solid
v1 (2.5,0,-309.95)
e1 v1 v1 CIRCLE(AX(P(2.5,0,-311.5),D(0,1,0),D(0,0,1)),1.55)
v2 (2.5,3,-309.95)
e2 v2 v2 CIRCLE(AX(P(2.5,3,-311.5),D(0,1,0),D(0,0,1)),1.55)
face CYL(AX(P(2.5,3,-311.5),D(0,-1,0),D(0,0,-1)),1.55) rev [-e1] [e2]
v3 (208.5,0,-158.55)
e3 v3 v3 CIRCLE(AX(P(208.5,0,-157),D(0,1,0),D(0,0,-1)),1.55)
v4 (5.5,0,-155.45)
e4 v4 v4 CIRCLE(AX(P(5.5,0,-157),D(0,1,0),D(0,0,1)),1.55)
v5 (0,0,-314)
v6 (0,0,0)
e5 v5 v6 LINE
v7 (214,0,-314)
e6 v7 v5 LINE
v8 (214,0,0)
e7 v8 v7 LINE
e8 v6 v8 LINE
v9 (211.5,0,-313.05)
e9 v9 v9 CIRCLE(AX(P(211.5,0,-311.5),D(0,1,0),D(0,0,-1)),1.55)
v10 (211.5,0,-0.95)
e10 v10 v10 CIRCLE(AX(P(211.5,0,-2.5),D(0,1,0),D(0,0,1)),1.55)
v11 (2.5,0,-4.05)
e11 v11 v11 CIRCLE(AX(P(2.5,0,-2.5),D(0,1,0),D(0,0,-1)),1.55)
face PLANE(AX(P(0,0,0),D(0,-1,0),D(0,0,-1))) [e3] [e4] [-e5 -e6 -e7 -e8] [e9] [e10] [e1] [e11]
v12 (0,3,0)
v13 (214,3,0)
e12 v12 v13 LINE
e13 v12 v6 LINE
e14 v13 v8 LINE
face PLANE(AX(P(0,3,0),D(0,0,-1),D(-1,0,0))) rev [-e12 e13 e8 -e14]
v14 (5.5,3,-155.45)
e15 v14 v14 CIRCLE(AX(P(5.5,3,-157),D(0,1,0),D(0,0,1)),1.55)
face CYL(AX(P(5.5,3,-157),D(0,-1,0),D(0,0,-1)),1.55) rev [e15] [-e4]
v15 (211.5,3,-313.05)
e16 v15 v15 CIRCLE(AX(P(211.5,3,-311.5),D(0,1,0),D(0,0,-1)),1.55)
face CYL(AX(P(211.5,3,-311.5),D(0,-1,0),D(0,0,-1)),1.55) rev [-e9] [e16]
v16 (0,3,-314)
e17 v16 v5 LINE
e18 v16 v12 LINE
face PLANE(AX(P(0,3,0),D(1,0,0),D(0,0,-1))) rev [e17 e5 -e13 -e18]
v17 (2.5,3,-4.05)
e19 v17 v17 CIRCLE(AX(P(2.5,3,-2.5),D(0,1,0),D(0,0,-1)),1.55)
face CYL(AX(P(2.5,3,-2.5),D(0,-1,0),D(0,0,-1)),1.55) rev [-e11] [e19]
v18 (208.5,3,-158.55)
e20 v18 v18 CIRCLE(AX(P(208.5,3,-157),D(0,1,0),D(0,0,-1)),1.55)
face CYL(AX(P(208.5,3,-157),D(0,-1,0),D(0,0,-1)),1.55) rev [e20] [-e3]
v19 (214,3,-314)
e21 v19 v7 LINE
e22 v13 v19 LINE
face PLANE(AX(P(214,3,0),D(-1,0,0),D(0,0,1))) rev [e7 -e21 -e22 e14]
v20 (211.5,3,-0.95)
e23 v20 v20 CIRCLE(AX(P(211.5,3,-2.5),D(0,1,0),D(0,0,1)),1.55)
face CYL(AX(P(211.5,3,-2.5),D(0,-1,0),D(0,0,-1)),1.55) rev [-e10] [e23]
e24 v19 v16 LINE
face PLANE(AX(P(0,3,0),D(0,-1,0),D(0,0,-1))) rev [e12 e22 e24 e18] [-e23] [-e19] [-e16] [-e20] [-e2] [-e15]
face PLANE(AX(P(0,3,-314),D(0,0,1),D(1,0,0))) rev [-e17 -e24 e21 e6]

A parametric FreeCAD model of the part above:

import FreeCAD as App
import Part
import Sketcher
from FreeCAD import Vector
Q = App.Units.Quantity

doc = App.newDocument("Part")
body = doc.addObject("PartDesign::Body", "Body")

sketch1 = body.newObject("Sketcher::SketchObject", "Sketch")
sketch1.AttachmentSupport = (doc.getObject("XZ_Plane"), [""])
sketch1.MapMode = "FlatFace"
sketch1.addGeometry([
    Part.LineSegment(Vector(0, -314, 0), Vector(0, 0, 0)),
    Part.LineSegment(Vector(0, 0, 0), Vector(214, 0, 0)),
    Part.LineSegment(Vector(214, 0, 0), Vector(214, -314, 0)),
    Part.LineSegment(Vector(214, -314, 0), Vector(0, -314, 0)),
    Part.Circle(Vector(2.5, -2.5, 0), Vector(0, 0, 1), 1.6),
    Part.Circle(Vector(5.5, -157, 0), Vector(0, 0, 1), 1.6),
    Part.Circle(Vector(211.5, -2.5, 0), Vector(0, 0, 1), 1.6),
    Part.Circle(Vector(208.5, -157, 0), Vector(0, 0, 1), 1.6),
    Part.Circle(Vector(2.5, -311.5, 0), Vector(0, 0, 1), 1.6),
    Part.Circle(Vector(211.5, -311.5, 0), Vector(0, 0, 1), 1.6),
], False)
sketch1.addConstraint([
    Sketcher.Constraint("Coincident", 0, 2, 1, 1),
    Sketcher.Constraint("Coincident", 1, 2, 2, 1),
    Sketcher.Constraint("Coincident", 2, 2, 3, 1),
    Sketcher.Constraint("Coincident", 3, 2, 0, 1),
    Sketcher.Constraint("Vertical", 0),
    Sketcher.Constraint("Horizontal", 1),
    Sketcher.Constraint("Vertical", 2),
    Sketcher.Constraint("Horizontal", 3),
    Sketcher.Constraint("Coincident", 0, 2, -1, 1),
    Sketcher.Constraint("Equal", 4, 5),
    Sketcher.Constraint("Equal", 5, 6),
    Sketcher.Constraint("Equal", 6, 7),
    Sketcher.Constraint("Equal", 7, 8),
    Sketcher.Constraint("Equal", 8, 9),
    Sketcher.Constraint("Horizontal", 4, 3, 6, 3),
    Sketcher.Constraint("Horizontal", 5, 3, 7, 3),
    Sketcher.Constraint("Horizontal", 8, 3, 9, 3),
    Sketcher.Constraint("Vertical", 4, 3, 8, 3),
    Sketcher.Constraint("Vertical", 6, 3, 9, 3),
    Sketcher.Constraint("Diameter", 4, Q("3.1 mm")),
    Sketcher.Constraint("DistanceX", 1, 1, 1, 2, Q("214 mm")),
    Sketcher.Constraint("DistanceY", 0, 1, 0, 2, Q("314 mm")),
    Sketcher.Constraint("DistanceY", 5, 3, -1, 1, Q("157 mm")),
    Sketcher.Constraint("DistanceX", 4, 3, 5, 3, Q("3 mm")),
    Sketcher.Constraint("DistanceX", 4, 3, 6, 3, Q("209 mm")),
    Sketcher.Constraint("DistanceX", 7, 3, 6, 3, Q("3 mm")),
    Sketcher.Constraint("DistanceY", 8, 3, 4, 3, Q("309 mm")),
    Sketcher.Constraint("DistanceX", -1, 1, 4, 3, Q("2.5 mm")),
    Sketcher.Constraint("DistanceY", 4, 3, -1, 1, Q("2.5 mm")),
])
pad1 = body.newObject("PartDesign::Pad", "Pad")
pad1.Profile = sketch1
pad1.Length = 3
pad1.Reversed = True

doc.recompute()
